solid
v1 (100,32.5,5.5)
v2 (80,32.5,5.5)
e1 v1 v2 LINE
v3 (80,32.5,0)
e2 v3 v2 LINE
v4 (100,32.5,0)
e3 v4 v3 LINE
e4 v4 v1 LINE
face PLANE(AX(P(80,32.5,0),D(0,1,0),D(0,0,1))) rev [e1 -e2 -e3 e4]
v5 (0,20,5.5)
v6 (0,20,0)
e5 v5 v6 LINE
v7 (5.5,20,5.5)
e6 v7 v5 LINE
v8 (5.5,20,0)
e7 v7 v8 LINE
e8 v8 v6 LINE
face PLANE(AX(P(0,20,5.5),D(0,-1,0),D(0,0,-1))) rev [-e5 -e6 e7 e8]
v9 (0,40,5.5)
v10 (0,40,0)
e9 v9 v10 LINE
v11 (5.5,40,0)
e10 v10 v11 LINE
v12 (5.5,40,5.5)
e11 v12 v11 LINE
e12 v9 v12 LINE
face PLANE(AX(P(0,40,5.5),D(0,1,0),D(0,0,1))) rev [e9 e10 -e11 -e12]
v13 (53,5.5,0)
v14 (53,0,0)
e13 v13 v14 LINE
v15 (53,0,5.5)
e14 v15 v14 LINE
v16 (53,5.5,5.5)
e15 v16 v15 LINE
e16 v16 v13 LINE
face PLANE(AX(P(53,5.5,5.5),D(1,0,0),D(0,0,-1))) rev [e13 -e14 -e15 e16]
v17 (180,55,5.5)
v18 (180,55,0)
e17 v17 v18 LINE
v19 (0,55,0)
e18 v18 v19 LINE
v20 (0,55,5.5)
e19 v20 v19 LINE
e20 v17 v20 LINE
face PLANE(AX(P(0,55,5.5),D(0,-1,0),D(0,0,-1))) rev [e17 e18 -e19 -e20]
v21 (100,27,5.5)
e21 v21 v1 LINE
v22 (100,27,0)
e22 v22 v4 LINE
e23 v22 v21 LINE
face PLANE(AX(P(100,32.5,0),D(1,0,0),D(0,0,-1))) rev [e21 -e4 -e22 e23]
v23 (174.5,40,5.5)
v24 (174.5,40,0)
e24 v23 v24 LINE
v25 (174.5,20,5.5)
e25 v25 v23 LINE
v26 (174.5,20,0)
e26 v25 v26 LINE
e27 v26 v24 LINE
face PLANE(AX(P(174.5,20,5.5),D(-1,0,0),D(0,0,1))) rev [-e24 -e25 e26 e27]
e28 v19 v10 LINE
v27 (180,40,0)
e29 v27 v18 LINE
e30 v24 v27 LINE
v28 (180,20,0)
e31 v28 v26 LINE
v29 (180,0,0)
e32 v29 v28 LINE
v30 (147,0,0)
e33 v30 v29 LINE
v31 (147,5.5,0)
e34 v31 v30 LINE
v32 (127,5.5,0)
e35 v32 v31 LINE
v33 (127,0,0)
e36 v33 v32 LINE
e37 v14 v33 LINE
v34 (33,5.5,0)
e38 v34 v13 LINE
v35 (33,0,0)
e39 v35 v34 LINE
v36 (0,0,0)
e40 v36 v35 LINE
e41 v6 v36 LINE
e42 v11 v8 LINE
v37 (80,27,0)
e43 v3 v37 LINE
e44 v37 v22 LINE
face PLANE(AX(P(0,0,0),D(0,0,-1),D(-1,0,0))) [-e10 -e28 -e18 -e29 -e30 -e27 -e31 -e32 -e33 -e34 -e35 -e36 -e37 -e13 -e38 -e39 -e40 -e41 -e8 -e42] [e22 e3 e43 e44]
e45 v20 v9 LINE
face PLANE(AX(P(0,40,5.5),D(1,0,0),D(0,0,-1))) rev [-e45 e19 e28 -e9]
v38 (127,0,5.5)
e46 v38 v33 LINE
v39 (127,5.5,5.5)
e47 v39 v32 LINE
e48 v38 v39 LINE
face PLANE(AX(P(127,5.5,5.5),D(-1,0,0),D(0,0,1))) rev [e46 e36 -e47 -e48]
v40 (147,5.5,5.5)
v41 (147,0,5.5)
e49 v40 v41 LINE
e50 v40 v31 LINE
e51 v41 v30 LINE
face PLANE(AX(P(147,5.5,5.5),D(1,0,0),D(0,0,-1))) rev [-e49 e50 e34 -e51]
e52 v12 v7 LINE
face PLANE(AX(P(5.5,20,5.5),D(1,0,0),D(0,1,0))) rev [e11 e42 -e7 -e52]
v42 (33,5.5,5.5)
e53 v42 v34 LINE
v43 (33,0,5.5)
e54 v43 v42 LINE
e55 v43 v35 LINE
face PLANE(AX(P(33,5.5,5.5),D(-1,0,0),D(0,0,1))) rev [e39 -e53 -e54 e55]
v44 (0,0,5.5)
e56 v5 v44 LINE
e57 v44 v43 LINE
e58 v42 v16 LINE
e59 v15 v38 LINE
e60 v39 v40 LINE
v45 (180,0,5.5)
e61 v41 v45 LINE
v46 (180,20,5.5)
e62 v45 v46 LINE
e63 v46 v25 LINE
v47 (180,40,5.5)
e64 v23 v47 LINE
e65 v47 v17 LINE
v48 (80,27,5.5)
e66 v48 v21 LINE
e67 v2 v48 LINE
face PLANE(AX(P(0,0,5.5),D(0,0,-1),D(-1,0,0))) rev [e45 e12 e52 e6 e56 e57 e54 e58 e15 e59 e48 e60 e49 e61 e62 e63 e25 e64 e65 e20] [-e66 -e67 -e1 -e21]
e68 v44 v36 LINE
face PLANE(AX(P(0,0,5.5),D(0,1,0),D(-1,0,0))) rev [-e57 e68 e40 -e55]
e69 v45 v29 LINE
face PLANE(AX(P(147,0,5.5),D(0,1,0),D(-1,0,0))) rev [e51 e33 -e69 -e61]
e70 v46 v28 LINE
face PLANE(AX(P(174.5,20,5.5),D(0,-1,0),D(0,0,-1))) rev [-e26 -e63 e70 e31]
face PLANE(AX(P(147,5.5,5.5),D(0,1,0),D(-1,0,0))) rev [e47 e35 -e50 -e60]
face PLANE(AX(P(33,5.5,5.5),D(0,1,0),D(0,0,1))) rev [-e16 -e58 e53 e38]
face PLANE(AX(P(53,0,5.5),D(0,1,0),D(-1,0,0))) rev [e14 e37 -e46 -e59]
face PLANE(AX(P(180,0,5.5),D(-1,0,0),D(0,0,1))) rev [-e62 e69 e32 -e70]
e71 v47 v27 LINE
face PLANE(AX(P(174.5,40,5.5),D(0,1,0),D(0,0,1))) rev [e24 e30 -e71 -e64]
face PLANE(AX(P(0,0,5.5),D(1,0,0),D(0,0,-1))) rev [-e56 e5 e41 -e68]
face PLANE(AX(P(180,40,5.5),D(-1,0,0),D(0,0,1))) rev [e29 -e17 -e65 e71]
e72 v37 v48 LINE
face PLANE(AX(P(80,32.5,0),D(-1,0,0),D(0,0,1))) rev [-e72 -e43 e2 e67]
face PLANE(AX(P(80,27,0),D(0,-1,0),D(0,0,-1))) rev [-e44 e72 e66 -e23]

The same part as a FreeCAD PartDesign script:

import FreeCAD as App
import Part
import Sketcher

V = App.Vector
Q = App.Units.Quantity


def add_polygon(sketch, points):
    """Adds a closed chain of lines whose ends are joined by coincident constraints."""
    first, n = sketch.GeometryCount, len(points)
    for a, b in zip(points, points[1:] + points[:1]):
        sketch.addGeometry(Part.LineSegment(App.Vector(*a, 0), App.Vector(*b, 0)), False)
    for i in range(n):
        sketch.addConstraint(Sketcher.Constraint("Coincident", first + i, 2, first + (i + 1) % n, 1))

doc = App.newDocument("Part")
body = doc.addObject("PartDesign::Body", "Body")

# Sketch on XY plane
sketch1 = doc.addObject("Sketcher::SketchObject", "Sketch")
body.addObject(sketch1)
sketch1.AttachmentSupport = (doc.XY_Plane, [""])
sketch1.MapMode = "FlatFace"
add_polygon(sketch1, [(0, 0), (33, 0), (33, 6), (53, 6), (53, 0), (127, 0), (127, 6), (147, 6), (147, 0), (180, 0), (180, 20), (174, 20), (174, 40), (180, 40), (180, 55), (0, 55), (0, 40), (6, 40), (6, 20), (0, 20)])  # lines 0-19
sketch1.addConstraint(Sketcher.Constraint("Horizontal", 0))
sketch1.addConstraint(Sketcher.Constraint("Vertical", 1))
sketch1.addConstraint(Sketcher.Constraint("Horizontal", 2))
sketch1.addConstraint(Sketcher.Constraint("Vertical", 3))
sketch1.addConstraint(Sketcher.Constraint("Horizontal", 4))
sketch1.addConstraint(Sketcher.Constraint("Vertical", 5))
sketch1.addConstraint(Sketcher.Constraint("Horizontal", 6))
sketch1.addConstraint(Sketcher.Constraint("Vertical", 7))
sketch1.addConstraint(Sketcher.Constraint("Horizontal", 8))
sketch1.addConstraint(Sketcher.Constraint("Vertical", 9))
sketch1.addConstraint(Sketcher.Constraint("Horizontal", 10))
sketch1.addConstraint(Sketcher.Constraint("Vertical", 11))
sketch1.addConstraint(Sketcher.Constraint("Horizontal", 12))
sketch1.addConstraint(Sketcher.Constraint("Vertical", 13))
sketch1.addConstraint(Sketcher.Constraint("Horizontal", 14))
sketch1.addConstraint(Sketcher.Constraint("Vertical", 15))
sketch1.addConstraint(Sketcher.Constraint("Horizontal", 16))
sketch1.addConstraint(Sketcher.Constraint("Vertical", 17))
sketch1.addConstraint(Sketcher.Constraint("Horizontal", 18))
sketch1.addConstraint(Sketcher.Constraint("Vertical", 19))
sketch1.addConstraint(Sketcher.Constraint("Coincident", 19, 2, -1, 1))
sketch1.addConstraint(Sketcher.Constraint("PointOnObject", 3, 2, -1))
sketch1.addConstraint(Sketcher.Constraint("PointOnObject", 7, 2, -1))
sketch1.addConstraint(Sketcher.Constraint("PointOnObject", 14, 2, -2))
sketch1.addConstraint(Sketcher.Constraint("Horizontal", 2, 2, 5, 2))
sketch1.addConstraint(Sketcher.Constraint("Horizontal", 12, 2, 15, 2))
sketch1.addConstraint(Sketcher.Constraint("Horizontal", 10, 2, 17, 2))
sketch1.addConstraint(Sketcher.Constraint("Vertical", 9, 2, 12, 2))
sketch1.addConstraint(Sketcher.Constraint("Equal", 2, 6))
sketch1.addConstraint(Sketcher.Constraint("Equal", 0, 8))
sketch1.addConstraint(Sketcher.Constraint("Equal", 12, 16))
sketch1.addConstraint(Sketcher.Constraint("Equal", 18, 1))
sketch1.addConstraint(Sketcher.Constraint("Equal", 6, 9))
sketch1.addConstraint(Sketcher.Constraint("Equal", 9, 11))
sketch1.addConstraint(Sketcher.Constraint("DistanceX", 0, 1, 0, 2, Q("33 mm")))
sketch1.addConstraint(Sketcher.Constraint("DistanceX", 2, 1, 2, 2, Q("20 mm")))
sketch1.addConstraint(Sketcher.Constraint("DistanceX", 4, 1, 4, 2, Q("74 mm")))
sketch1.addConstraint(Sketcher.Constraint("DistanceY", 13, 1, 13, 2, Q("15 mm")))
sketch1.addConstraint(Sketcher.Constraint("DistanceX", 10, 2, 10, 1, Q("5.5 mm")))
pad1 = doc.addObject("PartDesign::Pad", "Pad")
body.addObject(pad1)
pad1.Profile = sketch1
pad1.Length = 5.5

# Sketch on XY plane
sketch2 = doc.addObject("Sketcher::SketchObject", "Sketch001")
body.addObject(sketch2)
sketch2.AttachmentSupport = (doc.XY_Plane, [""])
sketch2.MapMode = "FlatFace"
sketch2.AttachmentOffset = App.Placement(V(0, 0, 5.5), App.Rotation())
add_polygon(sketch2, [(80, 32), (80, 27), (100, 27), (100, 32)])  # lines 0-3
sketch2.addConstraint(Sketcher.Constraint("Vertical", 0))
sketch2.addConstraint(Sketcher.Constraint("Horizontal", 1))
sketch2.addConstraint(Sketcher.Constraint("Vertical", 2))
sketch2.addConstraint(Sketcher.Constraint("Horizontal", 3))
sketch2.addConstraint(Sketcher.Constraint("DistanceX", 1, 1, 1, 2, Q("20 mm")))
sketch2.addConstraint(Sketcher.Constraint("DistanceY", 0, 2, 0, 1, Q("5.5 mm")))
sketch2.addConstraint(Sketcher.Constraint("DistanceX", -1, 1, 0, 2, Q("80 mm")))
sketch2.addConstraint(Sketcher.Constraint("DistanceY", -1, 1, 0, 2, Q("27 mm")))
pocket1 = doc.addObject("PartDesign::Pocket", "Pocket")
body.addObject(pocket1)
pocket1.Profile = sketch2
pocket1.Length = 5.5

doc.recompute()
